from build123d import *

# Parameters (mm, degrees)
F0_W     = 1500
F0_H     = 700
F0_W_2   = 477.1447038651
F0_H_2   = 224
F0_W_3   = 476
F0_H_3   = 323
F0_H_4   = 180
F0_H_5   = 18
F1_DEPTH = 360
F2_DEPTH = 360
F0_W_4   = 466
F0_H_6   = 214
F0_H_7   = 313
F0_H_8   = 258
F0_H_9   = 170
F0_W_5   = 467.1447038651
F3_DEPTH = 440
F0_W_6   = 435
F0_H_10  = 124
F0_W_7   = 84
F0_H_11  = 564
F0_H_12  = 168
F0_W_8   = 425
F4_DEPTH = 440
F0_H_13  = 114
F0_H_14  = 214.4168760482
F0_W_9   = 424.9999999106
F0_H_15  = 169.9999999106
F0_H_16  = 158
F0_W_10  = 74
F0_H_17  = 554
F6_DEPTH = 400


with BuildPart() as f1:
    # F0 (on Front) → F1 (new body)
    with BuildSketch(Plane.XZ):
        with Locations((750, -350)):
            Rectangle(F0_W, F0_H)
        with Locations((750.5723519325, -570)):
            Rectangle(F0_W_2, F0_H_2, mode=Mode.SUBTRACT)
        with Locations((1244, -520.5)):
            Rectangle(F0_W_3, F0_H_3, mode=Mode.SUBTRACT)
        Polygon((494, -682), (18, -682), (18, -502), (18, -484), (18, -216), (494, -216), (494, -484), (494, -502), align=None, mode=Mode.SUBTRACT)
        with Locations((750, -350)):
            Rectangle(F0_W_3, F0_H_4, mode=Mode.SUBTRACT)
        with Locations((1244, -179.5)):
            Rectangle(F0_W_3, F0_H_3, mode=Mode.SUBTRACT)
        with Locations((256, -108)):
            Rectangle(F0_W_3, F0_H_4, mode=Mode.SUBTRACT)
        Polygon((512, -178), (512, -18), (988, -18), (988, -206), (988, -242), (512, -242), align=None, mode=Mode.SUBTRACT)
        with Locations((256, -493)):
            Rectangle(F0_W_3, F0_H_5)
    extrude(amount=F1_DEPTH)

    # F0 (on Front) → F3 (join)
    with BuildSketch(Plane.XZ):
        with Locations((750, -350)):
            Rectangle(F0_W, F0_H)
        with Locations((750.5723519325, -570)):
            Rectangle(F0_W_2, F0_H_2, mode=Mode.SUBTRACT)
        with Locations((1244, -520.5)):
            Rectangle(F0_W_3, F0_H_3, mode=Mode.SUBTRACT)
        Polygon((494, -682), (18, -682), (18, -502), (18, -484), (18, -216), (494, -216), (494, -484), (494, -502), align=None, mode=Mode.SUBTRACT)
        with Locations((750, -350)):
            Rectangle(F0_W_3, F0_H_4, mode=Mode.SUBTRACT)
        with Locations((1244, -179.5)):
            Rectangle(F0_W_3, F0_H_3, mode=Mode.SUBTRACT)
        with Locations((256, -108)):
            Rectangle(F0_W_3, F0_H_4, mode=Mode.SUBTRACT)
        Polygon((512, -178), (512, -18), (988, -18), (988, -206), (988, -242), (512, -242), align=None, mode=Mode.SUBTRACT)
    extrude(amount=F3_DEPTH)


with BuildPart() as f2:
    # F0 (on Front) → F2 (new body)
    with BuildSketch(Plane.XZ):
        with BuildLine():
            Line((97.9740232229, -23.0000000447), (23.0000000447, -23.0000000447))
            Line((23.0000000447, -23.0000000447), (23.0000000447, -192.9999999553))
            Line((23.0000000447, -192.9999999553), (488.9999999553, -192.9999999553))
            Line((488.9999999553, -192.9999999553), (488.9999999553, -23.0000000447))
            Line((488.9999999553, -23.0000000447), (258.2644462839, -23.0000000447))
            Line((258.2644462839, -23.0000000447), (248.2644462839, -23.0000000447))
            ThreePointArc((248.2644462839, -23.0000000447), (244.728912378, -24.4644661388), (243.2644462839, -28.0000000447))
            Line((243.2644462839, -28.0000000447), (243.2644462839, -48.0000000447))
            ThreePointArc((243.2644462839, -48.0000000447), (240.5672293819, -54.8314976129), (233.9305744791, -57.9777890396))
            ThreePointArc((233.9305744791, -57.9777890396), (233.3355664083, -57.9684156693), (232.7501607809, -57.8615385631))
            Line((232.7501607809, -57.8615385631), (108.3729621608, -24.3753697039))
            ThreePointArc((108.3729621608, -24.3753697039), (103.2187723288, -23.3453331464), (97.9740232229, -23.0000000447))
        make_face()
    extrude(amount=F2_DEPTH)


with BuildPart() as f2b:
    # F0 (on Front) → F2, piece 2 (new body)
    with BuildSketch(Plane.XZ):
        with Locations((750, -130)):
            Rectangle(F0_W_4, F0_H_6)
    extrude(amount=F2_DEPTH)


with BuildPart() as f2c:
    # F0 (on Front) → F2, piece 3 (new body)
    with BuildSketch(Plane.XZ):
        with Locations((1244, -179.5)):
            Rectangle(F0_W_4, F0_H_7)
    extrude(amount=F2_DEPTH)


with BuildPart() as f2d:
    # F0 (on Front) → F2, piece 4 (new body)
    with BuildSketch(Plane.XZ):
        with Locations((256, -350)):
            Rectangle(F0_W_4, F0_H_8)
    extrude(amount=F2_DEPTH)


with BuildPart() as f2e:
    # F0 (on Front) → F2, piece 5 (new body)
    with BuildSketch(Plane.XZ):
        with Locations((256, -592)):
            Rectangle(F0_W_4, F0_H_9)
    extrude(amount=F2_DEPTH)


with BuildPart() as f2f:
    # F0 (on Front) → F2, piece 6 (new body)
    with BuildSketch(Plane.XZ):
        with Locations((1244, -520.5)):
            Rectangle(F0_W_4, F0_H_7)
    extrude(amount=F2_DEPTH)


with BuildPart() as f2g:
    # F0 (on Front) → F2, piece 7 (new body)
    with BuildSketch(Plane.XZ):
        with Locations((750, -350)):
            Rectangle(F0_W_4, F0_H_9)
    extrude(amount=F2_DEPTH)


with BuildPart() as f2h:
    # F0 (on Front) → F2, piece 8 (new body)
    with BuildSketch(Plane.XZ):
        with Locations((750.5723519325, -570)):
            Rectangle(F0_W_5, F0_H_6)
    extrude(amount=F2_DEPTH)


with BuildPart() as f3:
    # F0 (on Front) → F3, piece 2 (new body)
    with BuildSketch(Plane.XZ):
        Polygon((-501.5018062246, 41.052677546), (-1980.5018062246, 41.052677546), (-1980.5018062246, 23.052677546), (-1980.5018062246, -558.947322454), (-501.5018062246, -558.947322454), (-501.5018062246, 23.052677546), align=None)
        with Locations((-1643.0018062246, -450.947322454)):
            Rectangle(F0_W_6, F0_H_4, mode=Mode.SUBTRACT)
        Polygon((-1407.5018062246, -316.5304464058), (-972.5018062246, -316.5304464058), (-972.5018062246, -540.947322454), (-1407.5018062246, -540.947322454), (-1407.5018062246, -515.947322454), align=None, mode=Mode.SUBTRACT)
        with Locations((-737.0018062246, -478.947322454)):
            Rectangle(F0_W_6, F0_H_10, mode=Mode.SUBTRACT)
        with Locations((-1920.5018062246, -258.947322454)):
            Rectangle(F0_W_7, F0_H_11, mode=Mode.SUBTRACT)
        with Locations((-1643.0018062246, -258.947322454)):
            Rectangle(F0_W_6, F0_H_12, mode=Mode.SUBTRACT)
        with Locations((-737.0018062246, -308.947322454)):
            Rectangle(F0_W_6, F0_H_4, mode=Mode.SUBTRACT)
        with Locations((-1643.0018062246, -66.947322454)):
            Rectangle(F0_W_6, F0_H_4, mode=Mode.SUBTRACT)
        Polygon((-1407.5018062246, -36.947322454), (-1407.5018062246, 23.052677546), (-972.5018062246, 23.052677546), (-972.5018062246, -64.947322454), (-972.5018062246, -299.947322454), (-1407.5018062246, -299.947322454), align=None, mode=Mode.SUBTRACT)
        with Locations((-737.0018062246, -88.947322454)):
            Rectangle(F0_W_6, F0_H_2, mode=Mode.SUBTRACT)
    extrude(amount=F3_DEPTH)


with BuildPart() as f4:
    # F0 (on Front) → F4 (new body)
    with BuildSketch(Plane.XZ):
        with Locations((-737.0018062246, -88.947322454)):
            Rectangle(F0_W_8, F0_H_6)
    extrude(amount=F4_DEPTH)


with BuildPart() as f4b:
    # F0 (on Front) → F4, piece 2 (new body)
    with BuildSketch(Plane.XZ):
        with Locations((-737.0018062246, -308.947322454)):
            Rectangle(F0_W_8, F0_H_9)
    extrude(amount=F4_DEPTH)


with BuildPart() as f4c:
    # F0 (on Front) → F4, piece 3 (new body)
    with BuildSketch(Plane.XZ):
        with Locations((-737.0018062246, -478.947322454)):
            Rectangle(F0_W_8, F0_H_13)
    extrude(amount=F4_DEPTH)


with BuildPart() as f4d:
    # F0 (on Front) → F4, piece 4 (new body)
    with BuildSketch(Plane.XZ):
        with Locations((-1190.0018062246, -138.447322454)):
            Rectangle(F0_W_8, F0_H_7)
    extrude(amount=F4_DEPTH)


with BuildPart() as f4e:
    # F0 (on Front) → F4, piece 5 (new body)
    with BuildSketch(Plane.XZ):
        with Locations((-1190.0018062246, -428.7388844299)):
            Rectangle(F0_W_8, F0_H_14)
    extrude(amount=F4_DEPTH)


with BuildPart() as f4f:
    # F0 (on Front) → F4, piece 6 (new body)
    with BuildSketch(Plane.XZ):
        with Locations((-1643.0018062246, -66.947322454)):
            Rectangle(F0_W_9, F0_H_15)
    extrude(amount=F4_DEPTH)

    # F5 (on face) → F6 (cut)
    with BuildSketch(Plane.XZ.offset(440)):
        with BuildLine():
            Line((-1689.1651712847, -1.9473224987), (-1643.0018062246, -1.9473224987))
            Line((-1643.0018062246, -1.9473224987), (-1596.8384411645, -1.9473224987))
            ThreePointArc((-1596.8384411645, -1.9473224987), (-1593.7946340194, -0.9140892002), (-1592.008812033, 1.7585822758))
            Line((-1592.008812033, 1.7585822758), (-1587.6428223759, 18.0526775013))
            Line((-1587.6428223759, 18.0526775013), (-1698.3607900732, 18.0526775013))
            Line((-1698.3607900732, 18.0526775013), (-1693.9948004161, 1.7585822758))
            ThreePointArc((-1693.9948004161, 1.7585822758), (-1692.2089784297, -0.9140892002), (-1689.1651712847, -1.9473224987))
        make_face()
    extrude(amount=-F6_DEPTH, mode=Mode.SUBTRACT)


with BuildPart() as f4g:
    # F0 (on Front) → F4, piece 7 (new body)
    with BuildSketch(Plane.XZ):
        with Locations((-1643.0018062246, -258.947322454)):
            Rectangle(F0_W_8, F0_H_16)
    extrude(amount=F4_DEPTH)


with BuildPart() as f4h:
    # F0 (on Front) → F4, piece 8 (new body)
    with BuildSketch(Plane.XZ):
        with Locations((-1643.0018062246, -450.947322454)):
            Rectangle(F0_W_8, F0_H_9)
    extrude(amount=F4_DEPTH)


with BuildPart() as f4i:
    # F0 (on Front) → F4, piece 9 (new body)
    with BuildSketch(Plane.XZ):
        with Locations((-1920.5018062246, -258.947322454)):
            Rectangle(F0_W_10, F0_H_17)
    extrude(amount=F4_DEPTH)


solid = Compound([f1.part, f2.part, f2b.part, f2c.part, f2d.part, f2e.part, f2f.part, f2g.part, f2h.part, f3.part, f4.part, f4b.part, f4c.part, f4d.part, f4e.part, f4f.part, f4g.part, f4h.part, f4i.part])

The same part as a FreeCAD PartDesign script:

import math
import FreeCAD as App
import Part
import Sketcher

V = App.Vector
Q = App.Units.Quantity


def add_polygon(sketch, points):
    """Adds a closed chain of lines whose ends are joined by coincident constraints."""
    first, n = sketch.GeometryCount, len(points)
    for a, b in zip(points, points[1:] + points[:1]):
        sketch.addGeometry(Part.LineSegment(App.Vector(*a, 0), App.Vector(*b, 0)), False)
    for i in range(n):
        sketch.addConstraint(Sketcher.Constraint("Coincident", first + i, 2, first + (i + 1) % n, 1))

doc = App.newDocument("Part")
body = doc.addObject("PartDesign::Body", "Body")

# Sketch on XZ plane
sketch1 = body.newObject("Sketcher::SketchObject", "Sketch")
sketch1.AttachmentSupport = (doc.getObject("XZ_Plane"), [""])
sketch1.MapMode = "FlatFace"
add_polygon(sketch1, [(0, 0), (0, -700), (1500, -700), (1500, 0)])  # lines 0-3
add_polygon(sketch1, [(494, -216), (494, -484), (18, -484), (18, -216)])  # lines 4-7
add_polygon(sketch1, [(494, -502), (494, -682), (18, -682), (18, -502)])  # lines 8-11
add_polygon(sketch1, [(989.144704, -682), (512, -682), (512, -458), (989.144704, -458)])  # lines 12-15
add_polygon(sketch1, [(1482, -682), (1006, -682), (1006, -359), (1482, -359)])  # lines 16-19
add_polygon(sketch1, [(494, -198), (18, -198), (18, -18), (494, -18)])  # lines 20-23
add_polygon(sketch1, [(988, -440), (512, -440), (512, -260), (988, -260)])  # lines 24-27
add_polygon(sketch1, [(512, -242), (512, -18), (988, -18), (988, -242)])  # lines 28-31
add_polygon(sketch1, [(1482, -341), (1006, -341), (1006, -18), (1482, -18)])  # lines 32-35
sketch1.addConstraint([
    Sketcher.Constraint("Vertical", 0),
    Sketcher.Constraint("Horizontal", 1),
    Sketcher.Constraint("Vertical", 2),
    Sketcher.Constraint("Horizontal", 3),
    Sketcher.Constraint("Vertical", 4),
    Sketcher.Constraint("Horizontal", 5),
    Sketcher.Constraint("Vertical", 6),
    Sketcher.Constraint("Horizontal", 7),
    Sketcher.Constraint("Vertical", 8),
    Sketcher.Constraint("Horizontal", 9),
    Sketcher.Constraint("Vertical", 10),
    Sketcher.Constraint("Horizontal", 11),
    Sketcher.Constraint("Horizontal", 12),
    Sketcher.Constraint("Vertical", 13),
    Sketcher.Constraint("Horizontal", 14),
    Sketcher.Constraint("Vertical", 15),
    Sketcher.Constraint("Horizontal", 16),
    Sketcher.Constraint("Vertical", 17),
    Sketcher.Constraint("Horizontal", 18),
    Sketcher.Constraint("Vertical", 19),
    Sketcher.Constraint("Horizontal", 20),
    Sketcher.Constraint("Vertical", 21),
    Sketcher.Constraint("Horizontal", 22),
    Sketcher.Constraint("Vertical", 23),
    Sketcher.Constraint("Horizontal", 24),
    Sketcher.Constraint("Vertical", 25),
    Sketcher.Constraint("Horizontal", 26),
    Sketcher.Constraint("Vertical", 27),
    Sketcher.Constraint("Vertical", 28),
    Sketcher.Constraint("Horizontal", 29),
    Sketcher.Constraint("Vertical", 30),
    Sketcher.Constraint("Horizontal", 31),
    Sketcher.Constraint("Horizontal", 32),
    Sketcher.Constraint("Vertical", 33),
    Sketcher.Constraint("Horizontal", 34),
    Sketcher.Constraint("Vertical", 35),
    Sketcher.Constraint("Coincident", 3, 2, -1, 1),
    Sketcher.Constraint("Horizontal", 9, 2, 12, 2),
    Sketcher.Constraint("Horizontal", 15, 2, 16, 2),
    Sketcher.Constraint("Horizontal", 22, 2, 28, 2),
    Sketcher.Constraint("Horizontal", 29, 2, 33, 2),
    Sketcher.Constraint("Vertical", 7, 2, 8, 2),
    Sketcher.Constraint("Vertical", 6, 2, 9, 2),
    Sketcher.Constraint("Vertical", 10, 2, 20, 2),
    Sketcher.Constraint("Vertical", 11, 2, 22, 2),
    Sketcher.Constraint("Vertical", 13, 2, 24, 2),
    Sketcher.Constraint("Vertical", 25, 2, 28, 2),
    Sketcher.Constraint("Vertical", 27, 2, 29, 2),
    Sketcher.Constraint("Vertical", 17, 2, 32, 2),
    Sketcher.Constraint("Vertical", 19, 2, 34, 2),
    Sketcher.Constraint("Equal", 11, 16),
    Sketcher.Constraint("Equal", 22, 24),
    Sketcher.Constraint("Equal", 10, 21),
    Sketcher.Constraint("Equal", 23, 25),
    Sketcher.Constraint("Equal", 15, 28),
    Sketcher.Constraint("Equal", 19, 33),
    Sketcher.Constraint("DistanceX", 1, 1, 1, 2, 1500.0),
    Sketcher.Constraint("DistanceX", 5, 2, 5, 1, 476.0),
    Sketcher.Constraint("DistanceY", 0, 2, 0, 1, 700.0),
    Sketcher.Constraint("DistanceY", 4, 2, 4, 1, 268.0),
    Sketcher.Constraint("DistanceY", 8, 2, 8, 1, 180.0),
    Sketcher.Constraint("DistanceY", 13, 1, 13, 2, 224.0),
    Sketcher.Constraint("DistanceY", 17, 1, 17, 2, 323.0),
    Sketcher.Constraint("DistanceX", -1, 1, 4, 2, 494.0),
    Sketcher.Constraint("DistanceY", 4, 2, -1, 1, 484.0),
    Sketcher.Constraint("DistanceY", 8, 2, -1, 1, 682.0),
    Sketcher.Constraint("DistanceX", -1, 1, 12, 2, 512.0),
    Sketcher.Constraint("DistanceX", -1, 1, 16, 2, 1006.0),
    Sketcher.Constraint("DistanceY", 20, 2, -1, 1, 198.0),
    Sketcher.Constraint("DistanceY", 24, 2, -1, 1, 440.0),
    Sketcher.Constraint("DistanceX", 12, 2, 12, 1, 477.144704),
])
pad1 = body.newObject("PartDesign::Pad", "Pad")
pad1.Profile = sketch1
pad1.Length = 360

# Sketch on XZ plane
sketch2 = body.newObject("Sketcher::SketchObject", "Sketch001")
sketch2.AttachmentSupport = (doc.getObject("XZ_Plane"), [""])
sketch2.MapMode = "FlatFace"
add_polygon(sketch2, [(0, 0), (0, -700), (1500, -700), (1500, 0)])  # lines 0-3
add_polygon(sketch2, [(494, -216), (494, -682), (18, -682), (18, -216)])  # lines 4-7
add_polygon(sketch2, [(989.144704, -682), (512, -682), (512, -458), (989.144704, -458)])  # lines 8-11
add_polygon(sketch2, [(1482, -682), (1006, -682), (1006, -359), (1482, -359)])  # lines 12-15
add_polygon(sketch2, [(494, -198), (18, -198), (18, -18), (494, -18)])  # lines 16-19
add_polygon(sketch2, [(988, -440), (512, -440), (512, -260), (988, -260)])  # lines 20-23
add_polygon(sketch2, [(512, -242), (512, -18), (988, -18), (988, -242)])  # lines 24-27
add_polygon(sketch2, [(1482, -341), (1006, -341), (1006, -18), (1482, -18)])  # lines 28-31
sketch2.addConstraint([
    Sketcher.Constraint("Vertical", 0),
    Sketcher.Constraint("Horizontal", 1),
    Sketcher.Constraint("Vertical", 2),
    Sketcher.Constraint("Horizontal", 3),
    Sketcher.Constraint("Vertical", 4),
    Sketcher.Constraint("Horizontal", 5),
    Sketcher.Constraint("Vertical", 6),
    Sketcher.Constraint("Horizontal", 7),
    Sketcher.Constraint("Horizontal", 8),
    Sketcher.Constraint("Vertical", 9),
    Sketcher.Constraint("Horizontal", 10),
    Sketcher.Constraint("Vertical", 11),
    Sketcher.Constraint("Horizontal", 12),
    Sketcher.Constraint("Vertical", 13),
    Sketcher.Constraint("Horizontal", 14),
    Sketcher.Constraint("Vertical", 15),
    Sketcher.Constraint("Horizontal", 16),
    Sketcher.Constraint("Vertical", 17),
    Sketcher.Constraint("Horizontal", 18),
    Sketcher.Constraint("Vertical", 19),
    Sketcher.Constraint("Horizontal", 20),
    Sketcher.Constraint("Vertical", 21),
    Sketcher.Constraint("Horizontal", 22),
    Sketcher.Constraint("Vertical", 23),
    Sketcher.Constraint("Vertical", 24),
    Sketcher.Constraint("Horizontal", 25),
    Sketcher.Constraint("Vertical", 26),
    Sketcher.Constraint("Horizontal", 27),
    Sketcher.Constraint("Horizontal", 28),
    Sketcher.Constraint("Vertical", 29),
    Sketcher.Constraint("Horizontal", 30),
    Sketcher.Constraint("Vertical", 31),
    Sketcher.Constraint("Coincident", 3, 2, -1, 1),
    Sketcher.Constraint("Horizontal", 5, 2, 8, 2),
    Sketcher.Constraint("Horizontal", 11, 2, 12, 2),
    Sketcher.Constraint("Horizontal", 18, 2, 24, 2),
    Sketcher.Constraint("Horizontal", 25, 2, 29, 2),
    Sketcher.Constraint("Vertical", 6, 2, 16, 2),
    Sketcher.Constraint("Vertical", 7, 2, 18, 2),
    Sketcher.Constraint("Vertical", 9, 2, 20, 2),
    Sketcher.Constraint("Vertical", 21, 2, 24, 2),
    Sketcher.Constraint("Vertical", 23, 2, 25, 2),
    Sketcher.Constraint("Vertical", 13, 2, 28, 2),
    Sketcher.Constraint("Vertical", 15, 2, 30, 2),
    Sketcher.Constraint("Equal", 7, 12),
    Sketcher.Constraint("Equal", 18, 20),
    Sketcher.Constraint("Equal", 19, 21),
    Sketcher.Constraint("Equal", 11, 24),
    Sketcher.Constraint("Equal", 15, 29),
    Sketcher.Constraint("DistanceX", 1, 1, 1, 2, 1500.0),
    Sketcher.Constraint("DistanceX", 5, 2, 5, 1, 476.0),
    Sketcher.Constraint("DistanceY", 0, 2, 0, 1, 700.0),
    Sketcher.Constraint("DistanceY", 4, 2, 4, 1, 466.0),
    Sketcher.Constraint("DistanceY", 9, 1, 9, 2, 224.0),
    Sketcher.Constraint("DistanceY", 13, 1, 13, 2, 323.0),
    Sketcher.Constraint("DistanceY", 17, 1, 17, 2, 180.0),
    Sketcher.Constraint("DistanceX", -1, 1, 4, 2, 494.0),
    Sketcher.Constraint("DistanceY", 4, 2, -1, 1, 682.0),
    Sketcher.Constraint("DistanceX", -1, 1, 8, 2, 512.0),
    Sketcher.Constraint("DistanceX", -1, 1, 12, 2, 1006.0),
    Sketcher.Constraint("DistanceY", 16, 2, -1, 1, 198.0),
    Sketcher.Constraint("DistanceY", 20, 2, -1, 1, 440.0),
    Sketcher.Constraint("DistanceX", 8, 2, 8, 1, 477.144704),
])
pad2 = body.newObject("PartDesign::Pad", "Pad001")
pad2.Profile = sketch2
pad2.Length = 440
body2 = doc.addObject("PartDesign::Body", "Body001")

# Sketch on XZ plane
sketch3 = body2.newObject("Sketcher::SketchObject", "Sketch002")
sketch3.AttachmentSupport = (doc.getObject("XZ_Plane001"), [""])
sketch3.MapMode = "FlatFace"
sketch3.addGeometry([
    Part.LineSegment(V(97.974023, -23, 0), V(23, -23, 0)),  # 0
    Part.LineSegment(V(23, -23, 0), V(23, -193, 0)),  # 1
    Part.LineSegment(V(23, -193, 0), V(489, -193, 0)),  # 2
    Part.LineSegment(V(489, -193, 0), V(489, -23, 0)),  # 3
    Part.LineSegment(V(489, -23, 0), V(248.264446, -23, 0)),  # 4
    Part.ArcOfCircle(Part.Circle(V(248.264446, -28, 0), V(0, 0, 1), 5), math.radians(90), math.radians(180)),  # 5
    Part.LineSegment(V(243.264446, -28, 0), V(243.264446, -48, 0)),  # 6
    Part.ArcOfCircle(Part.Circle(V(233.264446, -48, 0), V(0, 0, 1), 10), math.radians(-86.180538), math.radians(0)),  # 7
    Part.ArcOfCircle(Part.Circle(V(233.689809, -54.371416, 0), V(0, 0, 1), 3.614401), math.radians(-105.068488), math.radians(-86.180538)),  # 8
    Part.LineSegment(V(232.750161, -57.861539, 0), V(108.372962, -24.37537, 0)),  # 9
    Part.ArcOfCircle(Part.Circle(V(97.974023, -63, 0), V(0, 0, 1), 40), math.radians(74.931512), math.radians(90)),  # 10
], False)
sketch3.addConstraint([
    Sketcher.Constraint("Coincident", 0, 2, 1, 1),
    Sketcher.Constraint("Coincident", 1, 2, 2, 1),
    Sketcher.Constraint("Coincident", 2, 2, 3, 1),
    Sketcher.Constraint("Coincident", 3, 2, 4, 1),
    Sketcher.Constraint("Tangent", 4, 2, 5, 1),
    Sketcher.Constraint("Tangent", 5, 2, 6, 1),
    Sketcher.Constraint("Tangent", 6, 2, 7, 2),
    Sketcher.Constraint("Tangent", 7, 1, 8, 2),
    Sketcher.Constraint("Tangent", 8, 1, 9, 1),
    Sketcher.Constraint("Tangent", 9, 2, 10, 1),
    Sketcher.Constraint("Tangent", 10, 2, 0, 1),
    Sketcher.Constraint("Horizontal", 0),
    Sketcher.Constraint("Vertical", 1),
    Sketcher.Constraint("Horizontal", 2),
    Sketcher.Constraint("Vertical", 3),
    Sketcher.Constraint("Horizontal", 4),
    Sketcher.Constraint("Vertical", 6),
    Sketcher.Constraint("Horizontal", 0, 2, 3, 2),
    Sketcher.Constraint("Radius", 5, 5.0),
    Sketcher.Constraint("Radius", 7, 10.0),
    Sketcher.Constraint("Radius", 10, 40.0),
    Sketcher.Constraint("DistanceX", 2, 1, 2, 2, 466.0),
    Sketcher.Constraint("DistanceY", 1, 2, 1, 1, 170.0),
    Sketcher.Constraint("DistanceY", 6, 2, 6, 1, 20.0),
    Sketcher.Constraint("DistanceY", 5, 3, -1, 1, 28.0),
    Sketcher.Constraint("DistanceX", -1, 1, 0, 2, 23.0),
    Sketcher.Constraint("Radius", 8, 3.614401),
    Sketcher.Constraint("Distance", 9, 128.806099),
    Sketcher.Constraint("DistanceX", 9, 2, 8, 1, 124.377199),
    Sketcher.Constraint("DistanceX", 0, 2, 0, 1, 74.974023),
])
pad3 = body2.newObject("PartDesign::Pad", "Pad002")
pad3.Profile = sketch3
pad3.Length = 360
body3 = doc.addObject("PartDesign::Body", "Body002")

# Sketch on XZ plane
sketch4 = body3.newObject("Sketcher::SketchObject", "Sketch003")
sketch4.AttachmentSupport = (doc.getObject("XZ_Plane002"), [""])
sketch4.MapMode = "FlatFace"
add_polygon(sketch4, [(517, -23), (517, -237), (983, -237), (983, -23)])  # lines 0-3
sketch4.addConstraint([
    Sketcher.Constraint("Vertical", 0),
    Sketcher.Constraint("Horizontal", 1),
    Sketcher.Constraint("Vertical", 2),
    Sketcher.Constraint("Horizontal", 3),
    Sketcher.Constraint("DistanceX", 1, 1, 1, 2, 466.0),
    Sketcher.Constraint("DistanceY", 0, 2, 0, 1, 214.0),
    Sketcher.Constraint("DistanceX", -1, 1, 0, 2, 517.0),
    Sketcher.Constraint("DistanceY", 0, 2, -1, 1, 237.0),
])
pad4 = body3.newObject("PartDesign::Pad", "Pad003")
pad4.Profile = sketch4
pad4.Length = 360
body4 = doc.addObject("PartDesign::Body", "Body003")

# Sketch on XZ plane
sketch5 = body4.newObject("Sketcher::SketchObject", "Sketch004")
sketch5.AttachmentSupport = (doc.getObject("XZ_Plane003"), [""])
sketch5.MapMode = "FlatFace"
add_polygon(sketch5, [(1011, -23), (1011, -336), (1477, -336), (1477, -23)])  # lines 0-3
sketch5.addConstraint([
    Sketcher.Constraint("Vertical", 0),
    Sketcher.Constraint("Horizontal", 1),
    Sketcher.Constraint("Vertical", 2),
    Sketcher.Constraint("Horizontal", 3),
    Sketcher.Constraint("DistanceX", 1, 1, 1, 2, 466.0),
    Sketcher.Constraint("DistanceY", 0, 2, 0, 1, 313.0),
    Sketcher.Constraint("DistanceX", -1, 1, 0, 2, 1011.0),
    Sketcher.Constraint("DistanceY", 0, 2, -1, 1, 336.0),
])
pad5 = body4.newObject("PartDesign::Pad", "Pad004")
pad5.Profile = sketch5
pad5.Length = 360
body5 = doc.addObject("PartDesign::Body", "Body004")

# Sketch on XZ plane
sketch6 = body5.newObject("Sketcher::SketchObject", "Sketch005")
sketch6.AttachmentSupport = (doc.getObject("XZ_Plane004"), [""])
sketch6.MapMode = "FlatFace"
add_polygon(sketch6, [(23, -221), (23, -479), (489, -479), (489, -221)])  # lines 0-3
sketch6.addConstraint([
    Sketcher.Constraint("Vertical", 0),
    Sketcher.Constraint("Horizontal", 1),
    Sketcher.Constraint("Vertical", 2),
    Sketcher.Constraint("Horizontal", 3),
    Sketcher.Constraint("DistanceX", 1, 1, 1, 2, 466.0),
    Sketcher.Constraint("DistanceY", 0, 2, 0, 1, 258.0),
    Sketcher.Constraint("DistanceX", -1, 1, 0, 2, 23.0),
    Sketcher.Constraint("DistanceY", 0, 2, -1, 1, 479.0),
])
pad6 = body5.newObject("PartDesign::Pad", "Pad005")
pad6.Profile = sketch6
pad6.Length = 360
body6 = doc.addObject("PartDesign::Body", "Body005")

# Sketch on XZ plane
sketch7 = body6.newObject("Sketcher::SketchObject", "Sketch006")
sketch7.AttachmentSupport = (doc.getObject("XZ_Plane005"), [""])
sketch7.MapMode = "FlatFace"
add_polygon(sketch7, [(23, -507), (23, -677), (489, -677), (489, -507)])  # lines 0-3
sketch7.addConstraint([
    Sketcher.Constraint("Vertical", 0),
    Sketcher.Constraint("Horizontal", 1),
    Sketcher.Constraint("Vertical", 2),
    Sketcher.Constraint("Horizontal", 3),
    Sketcher.Constraint("DistanceX", 1, 1, 1, 2, 466.0),
    Sketcher.Constraint("DistanceY", 0, 2, 0, 1, 170.0),
    Sketcher.Constraint("DistanceX", -1, 1, 0, 2, 23.0),
    Sketcher.Constraint("DistanceY", 0, 2, -1, 1, 677.0),
])
pad7 = body6.newObject("PartDesign::Pad", "Pad006")
pad7.Profile = sketch7
pad7.Length = 360
body7 = doc.addObject("PartDesign::Body", "Body006")

# Sketch on XZ plane
sketch8 = body7.newObject("Sketcher::SketchObject", "Sketch007")
sketch8.AttachmentSupport = (doc.getObject("XZ_Plane006"), [""])
sketch8.MapMode = "FlatFace"
add_polygon(sketch8, [(1011, -364), (1011, -677), (1477, -677), (1477, -364)])  # lines 0-3
sketch8.addConstraint([
    Sketcher.Constraint("Vertical", 0),
    Sketcher.Constraint("Horizontal", 1),
    Sketcher.Constraint("Vertical", 2),
    Sketcher.Constraint("Horizontal", 3),
    Sketcher.Constraint("DistanceX", 1, 1, 1, 2, 466.0),
    Sketcher.Constraint("DistanceY", 0, 2, 0, 1, 313.0),
    Sketcher.Constraint("DistanceX", -1, 1, 0, 2, 1011.0),
    Sketcher.Constraint("DistanceY", 0, 2, -1, 1, 677.0),
])
pad8 = body7.newObject("PartDesign::Pad", "Pad007")
pad8.Profile = sketch8
pad8.Length = 360
body8 = doc.addObject("PartDesign::Body", "Body007")

# Sketch on XZ plane
sketch9 = body8.newObject("Sketcher::SketchObject", "Sketch008")
sketch9.AttachmentSupport = (doc.getObject("XZ_Plane007"), [""])
sketch9.MapMode = "FlatFace"
add_polygon(sketch9, [(517, -265), (517, -435), (983, -435), (983, -265)])  # lines 0-3
sketch9.addConstraint([
    Sketcher.Constraint("Vertical", 0),
    Sketcher.Constraint("Horizontal", 1),
    Sketcher.Constraint("Vertical", 2),
    Sketcher.Constraint("Horizontal", 3),
    Sketcher.Constraint("DistanceX", 1, 1, 1, 2, 466.0),
    Sketcher.Constraint("DistanceY", 0, 2, 0, 1, 170.0),
    Sketcher.Constraint("DistanceX", -1, 1, 0, 2, 517.0),
    Sketcher.Constraint("DistanceY", 0, 2, -1, 1, 435.0),
])
pad9 = body8.newObject("PartDesign::Pad", "Pad008")
pad9.Profile = sketch9
pad9.Length = 360
body9 = doc.addObject("PartDesign::Body", "Body008")

# Sketch on XZ plane
sketch10 = body9.newObject("Sketcher::SketchObject", "Sketch009")
sketch10.AttachmentSupport = (doc.getObject("XZ_Plane008"), [""])
sketch10.MapMode = "FlatFace"
add_polygon(sketch10, [(517, -463), (517, -677), (984.144704, -677), (984.144704, -463)])  # lines 0-3
sketch10.addConstraint([
    Sketcher.Constraint("Vertical", 0),
    Sketcher.Constraint("Horizontal", 1),
    Sketcher.Constraint("Vertical", 2),
    Sketcher.Constraint("Horizontal", 3),
    Sketcher.Constraint("DistanceY", 0, 2, 0, 1, 214.0),
    Sketcher.Constraint("DistanceX", -1, 1, 0, 2, 517.0),
    Sketcher.Constraint("DistanceY", 0, 2, -1, 1, 677.0),
    Sketcher.Constraint("DistanceX", 1, 1, 1, 2, 467.144704),
])
pad10 = body9.newObject("PartDesign::Pad", "Pad009")
pad10.Profile = sketch10
pad10.Length = 360
body10 = doc.addObject("PartDesign::Body", "Body009")

# Sketch on XZ plane
sketch11 = body10.newObject("Sketcher::SketchObject", "Sketch010")
sketch11.AttachmentSupport = (doc.getObject("XZ_Plane009"), [""])
sketch11.MapMode = "FlatFace"
add_polygon(sketch11, [(-501.501806, 41.052678), (-1980.501806, 41.052678), (-1980.501806, -558.947322), (-501.501806, -558.947322)])  # lines 0-3
add_polygon(sketch11, [(-1425.501806, -540.947322), (-1860.501806, -540.947322), (-1860.501806, -360.947322), (-1425.501806, -360.947322)])  # lines 4-7
add_polygon(sketch11, [(-1407.501806, -540.947322), (-1407.501806, -316.530446), (-972.501806, -316.530446), (-972.501806, -540.947322)])  # lines 8-11
add_polygon(sketch11, [(-519.501806, -540.947322), (-954.501806, -540.947322), (-954.501806, -416.947322), (-519.501806, -416.947322)])  # lines 12-15
add_polygon(sketch11, [(-519.501806, -398.947322), (-954.501806, -398.947322), (-954.501806, -218.947322), (-519.501806, -218.947322)])  # lines 16-19
add_polygon(sketch11, [(-1878.501806, -540.947322), (-1962.501806, -540.947322), (-1962.501806, 23.052678), (-1878.501806, 23.052678)])  # lines 20-23
add_polygon(sketch11, [(-1425.501806, -342.947322), (-1860.501806, -342.947322), (-1860.501806, -174.947322), (-1425.501806, -174.947322)])  # lines 24-27
add_polygon(sketch11, [(-1425.501806, -156.947322), (-1860.501806, -156.947322), (-1860.501806, 23.052678), (-1425.501806, 23.052678)])  # lines 28-31
add_polygon(sketch11, [(-1407.501806, -299.947322), (-1407.501806, 23.052678), (-972.501806, 23.052678), (-972.501806, -299.947322)])  # lines 32-35
add_polygon(sketch11, [(-519.501806, -200.947322), (-954.501806, -200.947322), (-954.501806, 23.052678), (-519.501806, 23.052678)])  # lines 36-39
sketch11.addConstraint([
    Sketcher.Constraint("Horizontal", 0),
    Sketcher.Constraint("Vertical", 1),
    Sketcher.Constraint("Horizontal", 2),
    Sketcher.Constraint("Vertical", 3),
    Sketcher.Constraint("Horizontal", 4),
    Sketcher.Constraint("Vertical", 5),
    Sketcher.Constraint("Horizontal", 6),
    Sketcher.Constraint("Vertical", 7),
    Sketcher.Constraint("Vertical", 8),
    Sketcher.Constraint("Horizontal", 9),
    Sketcher.Constraint("Vertical", 10),
    Sketcher.Constraint("Horizontal", 11),
    Sketcher.Constraint("Horizontal", 12),
    Sketcher.Constraint("Vertical", 13),
    Sketcher.Constraint("Horizontal", 14),
    Sketcher.Constraint("Vertical", 15),
    Sketcher.Constraint("Horizontal", 16),
    Sketcher.Constraint("Vertical", 17),
    Sketcher.Constraint("Horizontal", 18),
    Sketcher.Constraint("Vertical", 19),
    Sketcher.Constraint("Horizontal", 20),
    Sketcher.Constraint("Vertical", 21),
    Sketcher.Constraint("Horizontal", 22),
    Sketcher.Constraint("Vertical", 23),
    Sketcher.Constraint("Horizontal", 24),
    Sketcher.Constraint("Vertical", 25),
    Sketcher.Constraint("Horizontal", 26),
    Sketcher.Constraint("Vertical", 27),
    Sketcher.Constraint("Horizontal", 28),
    Sketcher.Constraint("Vertical", 29),
    Sketcher.Constraint("Horizontal", 30),
    Sketcher.Constraint("Vertical", 31),
    Sketcher.Constraint("Vertical", 32),
    Sketcher.Constraint("Horizontal", 33),
    Sketcher.Constraint("Vertical", 34),
    Sketcher.Constraint("Horizontal", 35),
    Sketcher.Constraint("Horizontal", 36),
    Sketcher.Constraint("Vertical", 37),
    Sketcher.Constraint("Horizontal", 38),
    Sketcher.Constraint("Vertical", 39),
    Sketcher.Constraint("Horizontal", 7, 2, 10, 2),
    Sketcher.Constraint("Horizontal", 11, 2, 12, 2),
    Sketcher.Constraint("Horizontal", 15, 2, 20, 2),
    Sketcher.Constraint("Horizontal", 22, 2, 29, 2),
    Sketcher.Constraint("Horizontal", 30, 2, 32, 2),
    Sketcher.Constraint("Horizontal", 33, 2, 37, 2),
    Sketcher.Constraint("Vertical", 13, 2, 16, 2),
    Sketcher.Constraint("Vertical", 15, 2, 18, 2),
    Sketcher.Constraint("Vertical", 5, 2, 24, 2),
    Sketcher.Constraint("Vertical", 7, 2, 26, 2),
    Sketcher.Constraint("Vertical", 25, 2, 28, 2),
    Sketcher.Constraint("Vertical", 27, 2, 30, 2),
    Sketcher.Constraint("Vertical", 11, 2, 32, 2),
    Sketcher.Constraint("Vertical", 10, 2, 33, 2),
    Sketcher.Constraint("Vertical", 17, 2, 36, 2),
    Sketcher.Constraint("Vertical", 19, 2, 38, 2),
    Sketcher.Constraint("Equal", 6, 9),
    Sketcher.Constraint("Equal", 11, 12),
    Sketcher.Constraint("Equal", 7, 17),
    Sketcher.Constraint("Equal", 19, 29),
    Sketcher.Constraint("DistanceX", 0, 2, 0, 1, 1479.0),
    Sketcher.Constraint("DistanceX", 4, 2, 4, 1, 435.0),
    Sketcher.Constraint("DistanceX", 20, 2, 20, 1, 84.0),
    Sketcher.Constraint("DistanceY", 1, 2, 1, 1, 600.0),
    Sketcher.Constraint("DistanceY", 5, 1, 5, 2, 180.0),
    Sketcher.Constraint("DistanceY", 13, 1, 13, 2, 124.0),
    Sketcher.Constraint("DistanceY", 21, 1, 21, 2, 564.0),
    Sketcher.Constraint("DistanceY", 25, 1, 25, 2, 168.0),
    Sketcher.Constraint("DistanceY", 32, 1, 32, 2, 323.0),
    Sketcher.Constraint("DistanceY", 37, 1, 37, 2, 224.0),
    Sketcher.Constraint("DistanceX", 1, 2, 4, 2, 120.0),
    Sketcher.Constraint("DistanceY", 1, 2, 4, 2, 18.0),
    Sketcher.Constraint("DistanceX", 6, 2, 8, 2, 18.0),
    Sketcher.Constraint("DistanceX", 10, 2, 12, 2, 18.0),
    Sketcher.Constraint("DistanceY", 13, 2, 16, 2, 18.0),
    Sketcher.Constraint("DistanceX", 1, 2, 20, 2, 18.0),
    Sketcher.Constraint("DistanceY", 5, 2, 24, 2, 18.0),
    Sketcher.Constraint("DistanceY", 8, 1, 8, 2, 224.416876),
    Sketcher.Constraint("DistanceX", 0, 2, -1, 1, 1980.501806),
    Sketcher.Constraint("DistanceY", -1, 1, 0, 2, 41.052678),
])
pad11 = body10.newObject("PartDesign::Pad", "Pad010")
pad11.Profile = sketch11
pad11.Length = 440
body11 = doc.addObject("PartDesign::Body", "Body010")

# Sketch on XZ plane
sketch12 = body11.newObject("Sketcher::SketchObject", "Sketch011")
sketch12.AttachmentSupport = (doc.getObject("XZ_Plane010"), [""])
sketch12.MapMode = "FlatFace"
add_polygon(sketch12, [(-949.501806, 18.052678), (-949.501806, -195.947322), (-524.501806, -195.947322), (-524.501806, 18.052678)])  # lines 0-3
sketch12.addConstraint([
    Sketcher.Constraint("Vertical", 0),
    Sketcher.Constraint("Horizontal", 1),
    Sketcher.Constraint("Vertical", 2),
    Sketcher.Constraint("Horizontal", 3),
    Sketcher.Constraint("DistanceX", 1, 1, 1, 2, 425.0),
    Sketcher.Constraint("DistanceY", 0, 2, 0, 1, 214.0),
    Sketcher.Constraint("DistanceX", 0, 2, -1, 1, 949.501806),
    Sketcher.Constraint("DistanceY", 0, 2, -1, 1, 195.947322),
])
pad12 = body11.newObject("PartDesign::Pad", "Pad011")
pad12.Profile = sketch12
pad12.Length = 440
body12 = doc.addObject("PartDesign::Body", "Body011")

# Sketch on XZ plane
sketch13 = body12.newObject("Sketcher::SketchObject", "Sketch012")
sketch13.AttachmentSupport = (doc.getObject("XZ_Plane011"), [""])
sketch13.MapMode = "FlatFace"
add_polygon(sketch13, [(-949.501806, -223.947322), (-949.501806, -393.947322), (-524.501806, -393.947322), (-524.501806, -223.947322)])  # lines 0-3
sketch13.addConstraint([
    Sketcher.Constraint("Vertical", 0),
    Sketcher.Constraint("Horizontal", 1),
    Sketcher.Constraint("Vertical", 2),
    Sketcher.Constraint("Horizontal", 3),
    Sketcher.Constraint("DistanceX", 1, 1, 1, 2, 425.0),
    Sketcher.Constraint("DistanceY", 0, 2, 0, 1, 170.0),
    Sketcher.Constraint("DistanceX", 0, 2, -1, 1, 949.501806),
    Sketcher.Constraint("DistanceY", 0, 2, -1, 1, 393.947322),
])
pad13 = body12.newObject("PartDesign::Pad", "Pad012")
pad13.Profile = sketch13
pad13.Length = 440
body13 = doc.addObject("PartDesign::Body", "Body012")

# Sketch on XZ plane
sketch14 = body13.newObject("Sketcher::SketchObject", "Sketch013")
sketch14.AttachmentSupport = (doc.getObject("XZ_Plane012"), [""])
sketch14.MapMode = "FlatFace"
add_polygon(sketch14, [(-949.501806, -421.947322), (-949.501806, -535.947322), (-524.501806, -535.947322), (-524.501806, -421.947322)])  # lines 0-3
sketch14.addConstraint([
    Sketcher.Constraint("Vertical", 0),
    Sketcher.Constraint("Horizontal", 1),
    Sketcher.Constraint("Vertical", 2),
    Sketcher.Constraint("Horizontal", 3),
    Sketcher.Constraint("DistanceX", 1, 1, 1, 2, 425.0),
    Sketcher.Constraint("DistanceY", 0, 2, 0, 1, 114.0),
    Sketcher.Constraint("DistanceX", 0, 2, -1, 1, 949.501806),
    Sketcher.Constraint("DistanceY", 0, 2, -1, 1, 535.947322),
])
pad14 = body13.newObject("PartDesign::Pad", "Pad013")
pad14.Profile = sketch14
pad14.Length = 440
body14 = doc.addObject("PartDesign::Body", "Body013")

# Sketch on XZ plane
sketch15 = body14.newObject("Sketcher::SketchObject", "Sketch014")
sketch15.AttachmentSupport = (doc.getObject("XZ_Plane013"), [""])
sketch15.MapMode = "FlatFace"
add_polygon(sketch15, [(-1402.501806, 18.052678), (-1402.501806, -294.947322), (-977.501806, -294.947322), (-977.501806, 18.052678)])  # lines 0-3
sketch15.addConstraint([
    Sketcher.Constraint("Vertical", 0),
    Sketcher.Constraint("Horizontal", 1),
    Sketcher.Constraint("Vertical", 2),
    Sketcher.Constraint("Horizontal", 3),
    Sketcher.Constraint("DistanceX", 1, 1, 1, 2, 425.0),
    Sketcher.Constraint("DistanceY", 0, 2, 0, 1, 313.0),
    Sketcher.Constraint("DistanceX", 0, 2, -1, 1, 1402.501806),
    Sketcher.Constraint("DistanceY", 0, 2, -1, 1, 294.947322),
])
pad15 = body14.newObject("PartDesign::Pad", "Pad014")
pad15.Profile = sketch15
pad15.Length = 440
body15 = doc.addObject("PartDesign::Body", "Body014")

# Sketch on XZ plane
sketch16 = body15.newObject("Sketcher::SketchObject", "Sketch015")
sketch16.AttachmentSupport = (doc.getObject("XZ_Plane014"), [""])
sketch16.MapMode = "FlatFace"
add_polygon(sketch16, [(-1402.501806, -321.530446), (-1402.501806, -535.947322), (-977.501806, -535.947322), (-977.501806, -321.530446)])  # lines 0-3
sketch16.addConstraint([
    Sketcher.Constraint("Vertical", 0),
    Sketcher.Constraint("Horizontal", 1),
    Sketcher.Constraint("Vertical", 2),
    Sketcher.Constraint("Horizontal", 3),
    Sketcher.Constraint("DistanceX", 1, 1, 1, 2, 425.0),
    Sketcher.Constraint("DistanceY", 0, 2, 0, 1, 214.416876),
    Sketcher.Constraint("DistanceX", 0, 2, -1, 1, 1402.501806),
    Sketcher.Constraint("DistanceY", 0, 2, -1, 1, 535.947322),
])
pad16 = body15.newObject("PartDesign::Pad", "Pad015")
pad16.Profile = sketch16
pad16.Length = 440
body16 = doc.addObject("PartDesign::Body", "Body015")

# Sketch on XZ plane
sketch17 = body16.newObject("Sketcher::SketchObject", "Sketch016")
sketch17.AttachmentSupport = (doc.getObject("XZ_Plane015"), [""])
sketch17.MapMode = "FlatFace"
add_polygon(sketch17, [(-1855.501806, 18.052678), (-1855.501806, -151.947322), (-1430.501806, -151.947322), (-1430.501806, 18.052678)])  # lines 0-3
sketch17.addConstraint([
    Sketcher.Constraint("Vertical", 0),
    Sketcher.Constraint("Horizontal", 1),
    Sketcher.Constraint("Vertical", 2),
    Sketcher.Constraint("Horizontal", 3),
    Sketcher.Constraint("DistanceX", 1, 1, 1, 2, 425.0),
    Sketcher.Constraint("DistanceY", 0, 2, 0, 1, 170.0),
    Sketcher.Constraint("DistanceX", 0, 2, -1, 1, 1855.501806),
    Sketcher.Constraint("DistanceY", 0, 2, -1, 1, 151.947322),
])
pad17 = body16.newObject("PartDesign::Pad", "Pad016")
pad17.Profile = sketch17
pad17.Length = 440

# Sketch on XZ plane
sketch18 = body16.newObject("Sketcher::SketchObject", "Sketch017")
sketch18.AttachmentSupport = (doc.getObject("XZ_Plane015"), [""])
sketch18.MapMode = "FlatFace"
sketch18.AttachmentOffset = App.Placement(V(0, 0, 440), App.Rotation())
sketch18.addGeometry([
    Part.LineSegment(V(-1689.165171, -1.947322, 0), V(-1596.838441, -1.947322, 0)),  # 0
    Part.ArcOfCircle(Part.Circle(V(-1596.838441, 3.052678, 0), V(0, 0, 1), 5), math.radians(-90), math.radians(-15)),  # 1
    Part.LineSegment(V(-1592.008812, 1.758582, 0), V(-1587.642822, 18.052678, 0)),  # 2
    Part.LineSegment(V(-1587.642822, 18.052678, 0), V(-1698.36079, 18.052678, 0)),  # 3
    Part.LineSegment(V(-1698.36079, 18.052678, 0), V(-1693.9948, 1.758582, 0)),  # 4
    Part.ArcOfCircle(Part.Circle(V(-1689.165171, 3.052678, 0), V(0, 0, 1), 5), math.radians(-165), math.radians(-90)),  # 5
], False)
sketch18.addConstraint([
    Sketcher.Constraint("Tangent", 0, 2, 1, 1),
    Sketcher.Constraint("Tangent", 1, 2, 2, 1),
    Sketcher.Constraint("Coincident", 2, 2, 3, 1),
    Sketcher.Constraint("Coincident", 3, 2, 4, 1),
    Sketcher.Constraint("Tangent", 4, 2, 5, 1),
    Sketcher.Constraint("Tangent", 5, 2, 0, 1),
    Sketcher.Constraint("Horizontal", 0),
    Sketcher.Constraint("Horizontal", 3),
    Sketcher.Constraint("Equal", 1, 5),
    Sketcher.Constraint("Horizontal", 1, 2, 4, 2),
    Sketcher.Constraint("Radius", 1, 5.0),
    Sketcher.Constraint("Angle", 2, Q("75 deg")),
    Sketcher.Constraint("DistanceY", 1, 3, 2, 2, 15.0),
    Sketcher.Constraint("DistanceX", 0, 1, 0, 2, 92.32673),
    Sketcher.Constraint("DistanceX", 4, 2, -1, 1, 1693.9948),
    Sketcher.Constraint("DistanceY", -1, 1, 1, 3, 3.052678),
])
pocket1 = body16.newObject("PartDesign::Pocket", "Pocket")
pocket1.Profile = sketch18
pocket1.Length = 400
body17 = doc.addObject("PartDesign::Body", "Body016")

# Sketch on XZ plane
sketch19 = body17.newObject("Sketcher::SketchObject", "Sketch018")
sketch19.AttachmentSupport = (doc.getObject("XZ_Plane016"), [""])
sketch19.MapMode = "FlatFace"
add_polygon(sketch19, [(-1855.501806, -179.947322), (-1855.501806, -337.947322), (-1430.501806, -337.947322), (-1430.501806, -179.947322)])  # lines 0-3
sketch19.addConstraint([
    Sketcher.Constraint("Vertical", 0),
    Sketcher.Constraint("Horizontal", 1),
    Sketcher.Constraint("Vertical", 2),
    Sketcher.Constraint("Horizontal", 3),
    Sketcher.Constraint("DistanceX", 1, 1, 1, 2, 425.0),
    Sketcher.Constraint("DistanceY", 0, 2, 0, 1, 158.0),
    Sketcher.Constraint("DistanceX", 0, 2, -1, 1, 1855.501806),
    Sketcher.Constraint("DistanceY", 0, 2, -1, 1, 337.947322),
])
pad18 = body17.newObject("PartDesign::Pad", "Pad017")
pad18.Profile = sketch19
pad18.Length = 440
body18 = doc.addObject("PartDesign::Body", "Body017")

# Sketch on XZ plane
sketch20 = body18.newObject("Sketcher::SketchObject", "Sketch019")
sketch20.AttachmentSupport = (doc.getObject("XZ_Plane017"), [""])
sketch20.MapMode = "FlatFace"
add_polygon(sketch20, [(-1855.501806, -365.947322), (-1855.501806, -535.947322), (-1430.501806, -535.947322), (-1430.501806, -365.947322)])  # lines 0-3
sketch20.addConstraint([
    Sketcher.Constraint("Vertical", 0),
    Sketcher.Constraint("Horizontal", 1),
    Sketcher.Constraint("Vertical", 2),
    Sketcher.Constraint("Horizontal", 3),
    Sketcher.Constraint("DistanceX", 1, 1, 1, 2, 425.0),
    Sketcher.Constraint("DistanceY", 0, 2, 0, 1, 170.0),
    Sketcher.Constraint("DistanceX", 0, 2, -1, 1, 1855.501806),
    Sketcher.Constraint("DistanceY", 0, 2, -1, 1, 535.947322),
])
pad19 = body18.newObject("PartDesign::Pad", "Pad018")
pad19.Profile = sketch20
pad19.Length = 440
body19 = doc.addObject("PartDesign::Body", "Body018")

# Sketch on XZ plane
sketch21 = body19.newObject("Sketcher::SketchObject", "Sketch020")
sketch21.AttachmentSupport = (doc.getObject("XZ_Plane018"), [""])
sketch21.MapMode = "FlatFace"
add_polygon(sketch21, [(-1957.501806, 18.052678), (-1957.501806, -535.947322), (-1883.501806, -535.947322), (-1883.501806, 18.052678)])  # lines 0-3
sketch21.addConstraint([
    Sketcher.Constraint("Vertical", 0),
    Sketcher.Constraint("Horizontal", 1),
    Sketcher.Constraint("Vertical", 2),
    Sketcher.Constraint("Horizontal", 3),
    Sketcher.Constraint("DistanceX", 1, 1, 1, 2, 74.0),
    Sketcher.Constraint("DistanceY", 0, 2, 0, 1, 554.0),
    Sketcher.Constraint("DistanceX", 0, 2, -1, 1, 1957.501806),
    Sketcher.Constraint("DistanceY", 0, 2, -1, 1, 535.947322),
])
pad20 = body19.newObject("PartDesign::Pad", "Pad019")
pad20.Profile = sketch21
pad20.Length = 440

doc.recompute()
